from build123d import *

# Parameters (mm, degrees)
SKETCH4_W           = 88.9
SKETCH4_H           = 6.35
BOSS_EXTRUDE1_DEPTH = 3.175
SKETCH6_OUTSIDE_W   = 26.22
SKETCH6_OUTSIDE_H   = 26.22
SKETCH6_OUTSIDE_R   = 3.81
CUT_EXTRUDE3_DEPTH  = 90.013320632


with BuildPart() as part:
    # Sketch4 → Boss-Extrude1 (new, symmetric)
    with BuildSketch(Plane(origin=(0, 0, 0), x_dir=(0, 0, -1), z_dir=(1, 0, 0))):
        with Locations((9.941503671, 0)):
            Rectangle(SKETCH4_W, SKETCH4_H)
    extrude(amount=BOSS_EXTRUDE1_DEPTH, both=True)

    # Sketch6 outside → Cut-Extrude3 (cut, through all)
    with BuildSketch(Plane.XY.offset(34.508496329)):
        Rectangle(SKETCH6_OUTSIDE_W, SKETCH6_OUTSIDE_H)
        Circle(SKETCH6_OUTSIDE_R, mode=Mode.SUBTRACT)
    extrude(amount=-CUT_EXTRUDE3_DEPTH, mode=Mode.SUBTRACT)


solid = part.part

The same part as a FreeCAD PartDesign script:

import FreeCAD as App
import Part
import Sketcher
Q = App.Units.Quantity

doc = App.newDocument("Part")
body = doc.addObject("PartDesign::Body", "Body")

sketch1 = doc.addObject("Sketcher::SketchObject", "Sketch")
body.addObject(sketch1)
sketch1.AttachmentSupport = (doc.YZ_Plane, [""])
sketch1.MapMode = "FlatFace"
sketch1.addGeometry([
    Part.LineSegment(App.Vector(3.175, 34.508496, 0), App.Vector(-3.175, 34.508496, 0)),
    Part.LineSegment(App.Vector(-3.175, 34.508496, 0), App.Vector(-3.175, -54.391504, 0)),
    Part.LineSegment(App.Vector(-3.175, -54.391504, 0), App.Vector(3.175, -54.391504, 0)),
    Part.LineSegment(App.Vector(3.175, -54.391504, 0), App.Vector(3.175, 34.508496, 0)),
], False)
sketch1.addConstraint([
    Sketcher.Constraint("Coincident", 0, 2, 1, 1),
    Sketcher.Constraint("Coincident", 1, 2, 2, 1),
    Sketcher.Constraint("Coincident", 2, 2, 3, 1),
    Sketcher.Constraint("Coincident", 3, 2, 0, 1),
    Sketcher.Constraint("Horizontal", 0),
    Sketcher.Constraint("Vertical", 1),
    Sketcher.Constraint("Horizontal", 2),
    Sketcher.Constraint("Vertical", 3),
    Sketcher.Constraint("DistanceY", 1, 2, 1, 1, Q("3.5 in")),
    Sketcher.Constraint("DistanceX", 0, 2, 0, 1, Q("0.25 in")),
    Sketcher.Constraint("DistanceX", 0, 2, -1, 1, Q("0.125 in")),
    Sketcher.Constraint("DistanceY", -1, 1, 0, 2, 34.508496),
])
pad1 = doc.addObject("PartDesign::Pad", "Pad")
body.addObject(pad1)
pad1.Profile = sketch1
pad1.Length = Q("0.25 in")
pad1.Midplane = True

sketch2 = doc.addObject("Sketcher::SketchObject", "Sketch001")
body.addObject(sketch2)
sketch2.AttachmentSupport = (doc.XY_Plane, [""])
sketch2.MapMode = "FlatFace"
sketch2.AttachmentOffset = App.Placement(App.Vector(0, 0, 34.508496), App.Rotation())
sketch2.addGeometry([
    Part.LineSegment(App.Vector(-13.11, 13.11, 0), App.Vector(-13.11, -13.11, 0)),
    Part.LineSegment(App.Vector(-13.11, -13.11, 0), App.Vector(13.11, -13.11, 0)),
    Part.LineSegment(App.Vector(13.11, -13.11, 0), App.Vector(13.11, 13.11, 0)),
    Part.LineSegment(App.Vector(13.11, 13.11, 0), App.Vector(-13.11, 13.11, 0)),
    Part.Circle(App.Vector(0, 0, 0), App.Vector(0, 0, 1), 3.81),
], False)
sketch2.addConstraint([
    Sketcher.Constraint("Coincident", 0, 2, 1, 1),
    Sketcher.Constraint("Coincident", 1, 2, 2, 1),
    Sketcher.Constraint("Coincident", 2, 2, 3, 1),
    Sketcher.Constraint("Coincident", 3, 2, 0, 1),
    Sketcher.Constraint("Vertical", 0),
    Sketcher.Constraint("Horizontal", 1),
    Sketcher.Constraint("Vertical", 2),
    Sketcher.Constraint("Horizontal", 3),
    Sketcher.Constraint("Coincident", 4, 3, -1, 1),
    Sketcher.Constraint("Symmetric", 0, 2, 2, 2, -1, 1),
    Sketcher.Constraint("Equal", 3, 0),
    Sketcher.Constraint("Diameter", 4, Q("0.3 in")),
    Sketcher.Constraint("DistanceX", 1, 1, 1, 2, 26.22),
])
pocket1 = doc.addObject("PartDesign::Pocket", "Pocket")
body.addObject(pocket1)
pocket1.Profile = sketch2
pocket1.Type = "ThroughAll"

doc.recompute()
